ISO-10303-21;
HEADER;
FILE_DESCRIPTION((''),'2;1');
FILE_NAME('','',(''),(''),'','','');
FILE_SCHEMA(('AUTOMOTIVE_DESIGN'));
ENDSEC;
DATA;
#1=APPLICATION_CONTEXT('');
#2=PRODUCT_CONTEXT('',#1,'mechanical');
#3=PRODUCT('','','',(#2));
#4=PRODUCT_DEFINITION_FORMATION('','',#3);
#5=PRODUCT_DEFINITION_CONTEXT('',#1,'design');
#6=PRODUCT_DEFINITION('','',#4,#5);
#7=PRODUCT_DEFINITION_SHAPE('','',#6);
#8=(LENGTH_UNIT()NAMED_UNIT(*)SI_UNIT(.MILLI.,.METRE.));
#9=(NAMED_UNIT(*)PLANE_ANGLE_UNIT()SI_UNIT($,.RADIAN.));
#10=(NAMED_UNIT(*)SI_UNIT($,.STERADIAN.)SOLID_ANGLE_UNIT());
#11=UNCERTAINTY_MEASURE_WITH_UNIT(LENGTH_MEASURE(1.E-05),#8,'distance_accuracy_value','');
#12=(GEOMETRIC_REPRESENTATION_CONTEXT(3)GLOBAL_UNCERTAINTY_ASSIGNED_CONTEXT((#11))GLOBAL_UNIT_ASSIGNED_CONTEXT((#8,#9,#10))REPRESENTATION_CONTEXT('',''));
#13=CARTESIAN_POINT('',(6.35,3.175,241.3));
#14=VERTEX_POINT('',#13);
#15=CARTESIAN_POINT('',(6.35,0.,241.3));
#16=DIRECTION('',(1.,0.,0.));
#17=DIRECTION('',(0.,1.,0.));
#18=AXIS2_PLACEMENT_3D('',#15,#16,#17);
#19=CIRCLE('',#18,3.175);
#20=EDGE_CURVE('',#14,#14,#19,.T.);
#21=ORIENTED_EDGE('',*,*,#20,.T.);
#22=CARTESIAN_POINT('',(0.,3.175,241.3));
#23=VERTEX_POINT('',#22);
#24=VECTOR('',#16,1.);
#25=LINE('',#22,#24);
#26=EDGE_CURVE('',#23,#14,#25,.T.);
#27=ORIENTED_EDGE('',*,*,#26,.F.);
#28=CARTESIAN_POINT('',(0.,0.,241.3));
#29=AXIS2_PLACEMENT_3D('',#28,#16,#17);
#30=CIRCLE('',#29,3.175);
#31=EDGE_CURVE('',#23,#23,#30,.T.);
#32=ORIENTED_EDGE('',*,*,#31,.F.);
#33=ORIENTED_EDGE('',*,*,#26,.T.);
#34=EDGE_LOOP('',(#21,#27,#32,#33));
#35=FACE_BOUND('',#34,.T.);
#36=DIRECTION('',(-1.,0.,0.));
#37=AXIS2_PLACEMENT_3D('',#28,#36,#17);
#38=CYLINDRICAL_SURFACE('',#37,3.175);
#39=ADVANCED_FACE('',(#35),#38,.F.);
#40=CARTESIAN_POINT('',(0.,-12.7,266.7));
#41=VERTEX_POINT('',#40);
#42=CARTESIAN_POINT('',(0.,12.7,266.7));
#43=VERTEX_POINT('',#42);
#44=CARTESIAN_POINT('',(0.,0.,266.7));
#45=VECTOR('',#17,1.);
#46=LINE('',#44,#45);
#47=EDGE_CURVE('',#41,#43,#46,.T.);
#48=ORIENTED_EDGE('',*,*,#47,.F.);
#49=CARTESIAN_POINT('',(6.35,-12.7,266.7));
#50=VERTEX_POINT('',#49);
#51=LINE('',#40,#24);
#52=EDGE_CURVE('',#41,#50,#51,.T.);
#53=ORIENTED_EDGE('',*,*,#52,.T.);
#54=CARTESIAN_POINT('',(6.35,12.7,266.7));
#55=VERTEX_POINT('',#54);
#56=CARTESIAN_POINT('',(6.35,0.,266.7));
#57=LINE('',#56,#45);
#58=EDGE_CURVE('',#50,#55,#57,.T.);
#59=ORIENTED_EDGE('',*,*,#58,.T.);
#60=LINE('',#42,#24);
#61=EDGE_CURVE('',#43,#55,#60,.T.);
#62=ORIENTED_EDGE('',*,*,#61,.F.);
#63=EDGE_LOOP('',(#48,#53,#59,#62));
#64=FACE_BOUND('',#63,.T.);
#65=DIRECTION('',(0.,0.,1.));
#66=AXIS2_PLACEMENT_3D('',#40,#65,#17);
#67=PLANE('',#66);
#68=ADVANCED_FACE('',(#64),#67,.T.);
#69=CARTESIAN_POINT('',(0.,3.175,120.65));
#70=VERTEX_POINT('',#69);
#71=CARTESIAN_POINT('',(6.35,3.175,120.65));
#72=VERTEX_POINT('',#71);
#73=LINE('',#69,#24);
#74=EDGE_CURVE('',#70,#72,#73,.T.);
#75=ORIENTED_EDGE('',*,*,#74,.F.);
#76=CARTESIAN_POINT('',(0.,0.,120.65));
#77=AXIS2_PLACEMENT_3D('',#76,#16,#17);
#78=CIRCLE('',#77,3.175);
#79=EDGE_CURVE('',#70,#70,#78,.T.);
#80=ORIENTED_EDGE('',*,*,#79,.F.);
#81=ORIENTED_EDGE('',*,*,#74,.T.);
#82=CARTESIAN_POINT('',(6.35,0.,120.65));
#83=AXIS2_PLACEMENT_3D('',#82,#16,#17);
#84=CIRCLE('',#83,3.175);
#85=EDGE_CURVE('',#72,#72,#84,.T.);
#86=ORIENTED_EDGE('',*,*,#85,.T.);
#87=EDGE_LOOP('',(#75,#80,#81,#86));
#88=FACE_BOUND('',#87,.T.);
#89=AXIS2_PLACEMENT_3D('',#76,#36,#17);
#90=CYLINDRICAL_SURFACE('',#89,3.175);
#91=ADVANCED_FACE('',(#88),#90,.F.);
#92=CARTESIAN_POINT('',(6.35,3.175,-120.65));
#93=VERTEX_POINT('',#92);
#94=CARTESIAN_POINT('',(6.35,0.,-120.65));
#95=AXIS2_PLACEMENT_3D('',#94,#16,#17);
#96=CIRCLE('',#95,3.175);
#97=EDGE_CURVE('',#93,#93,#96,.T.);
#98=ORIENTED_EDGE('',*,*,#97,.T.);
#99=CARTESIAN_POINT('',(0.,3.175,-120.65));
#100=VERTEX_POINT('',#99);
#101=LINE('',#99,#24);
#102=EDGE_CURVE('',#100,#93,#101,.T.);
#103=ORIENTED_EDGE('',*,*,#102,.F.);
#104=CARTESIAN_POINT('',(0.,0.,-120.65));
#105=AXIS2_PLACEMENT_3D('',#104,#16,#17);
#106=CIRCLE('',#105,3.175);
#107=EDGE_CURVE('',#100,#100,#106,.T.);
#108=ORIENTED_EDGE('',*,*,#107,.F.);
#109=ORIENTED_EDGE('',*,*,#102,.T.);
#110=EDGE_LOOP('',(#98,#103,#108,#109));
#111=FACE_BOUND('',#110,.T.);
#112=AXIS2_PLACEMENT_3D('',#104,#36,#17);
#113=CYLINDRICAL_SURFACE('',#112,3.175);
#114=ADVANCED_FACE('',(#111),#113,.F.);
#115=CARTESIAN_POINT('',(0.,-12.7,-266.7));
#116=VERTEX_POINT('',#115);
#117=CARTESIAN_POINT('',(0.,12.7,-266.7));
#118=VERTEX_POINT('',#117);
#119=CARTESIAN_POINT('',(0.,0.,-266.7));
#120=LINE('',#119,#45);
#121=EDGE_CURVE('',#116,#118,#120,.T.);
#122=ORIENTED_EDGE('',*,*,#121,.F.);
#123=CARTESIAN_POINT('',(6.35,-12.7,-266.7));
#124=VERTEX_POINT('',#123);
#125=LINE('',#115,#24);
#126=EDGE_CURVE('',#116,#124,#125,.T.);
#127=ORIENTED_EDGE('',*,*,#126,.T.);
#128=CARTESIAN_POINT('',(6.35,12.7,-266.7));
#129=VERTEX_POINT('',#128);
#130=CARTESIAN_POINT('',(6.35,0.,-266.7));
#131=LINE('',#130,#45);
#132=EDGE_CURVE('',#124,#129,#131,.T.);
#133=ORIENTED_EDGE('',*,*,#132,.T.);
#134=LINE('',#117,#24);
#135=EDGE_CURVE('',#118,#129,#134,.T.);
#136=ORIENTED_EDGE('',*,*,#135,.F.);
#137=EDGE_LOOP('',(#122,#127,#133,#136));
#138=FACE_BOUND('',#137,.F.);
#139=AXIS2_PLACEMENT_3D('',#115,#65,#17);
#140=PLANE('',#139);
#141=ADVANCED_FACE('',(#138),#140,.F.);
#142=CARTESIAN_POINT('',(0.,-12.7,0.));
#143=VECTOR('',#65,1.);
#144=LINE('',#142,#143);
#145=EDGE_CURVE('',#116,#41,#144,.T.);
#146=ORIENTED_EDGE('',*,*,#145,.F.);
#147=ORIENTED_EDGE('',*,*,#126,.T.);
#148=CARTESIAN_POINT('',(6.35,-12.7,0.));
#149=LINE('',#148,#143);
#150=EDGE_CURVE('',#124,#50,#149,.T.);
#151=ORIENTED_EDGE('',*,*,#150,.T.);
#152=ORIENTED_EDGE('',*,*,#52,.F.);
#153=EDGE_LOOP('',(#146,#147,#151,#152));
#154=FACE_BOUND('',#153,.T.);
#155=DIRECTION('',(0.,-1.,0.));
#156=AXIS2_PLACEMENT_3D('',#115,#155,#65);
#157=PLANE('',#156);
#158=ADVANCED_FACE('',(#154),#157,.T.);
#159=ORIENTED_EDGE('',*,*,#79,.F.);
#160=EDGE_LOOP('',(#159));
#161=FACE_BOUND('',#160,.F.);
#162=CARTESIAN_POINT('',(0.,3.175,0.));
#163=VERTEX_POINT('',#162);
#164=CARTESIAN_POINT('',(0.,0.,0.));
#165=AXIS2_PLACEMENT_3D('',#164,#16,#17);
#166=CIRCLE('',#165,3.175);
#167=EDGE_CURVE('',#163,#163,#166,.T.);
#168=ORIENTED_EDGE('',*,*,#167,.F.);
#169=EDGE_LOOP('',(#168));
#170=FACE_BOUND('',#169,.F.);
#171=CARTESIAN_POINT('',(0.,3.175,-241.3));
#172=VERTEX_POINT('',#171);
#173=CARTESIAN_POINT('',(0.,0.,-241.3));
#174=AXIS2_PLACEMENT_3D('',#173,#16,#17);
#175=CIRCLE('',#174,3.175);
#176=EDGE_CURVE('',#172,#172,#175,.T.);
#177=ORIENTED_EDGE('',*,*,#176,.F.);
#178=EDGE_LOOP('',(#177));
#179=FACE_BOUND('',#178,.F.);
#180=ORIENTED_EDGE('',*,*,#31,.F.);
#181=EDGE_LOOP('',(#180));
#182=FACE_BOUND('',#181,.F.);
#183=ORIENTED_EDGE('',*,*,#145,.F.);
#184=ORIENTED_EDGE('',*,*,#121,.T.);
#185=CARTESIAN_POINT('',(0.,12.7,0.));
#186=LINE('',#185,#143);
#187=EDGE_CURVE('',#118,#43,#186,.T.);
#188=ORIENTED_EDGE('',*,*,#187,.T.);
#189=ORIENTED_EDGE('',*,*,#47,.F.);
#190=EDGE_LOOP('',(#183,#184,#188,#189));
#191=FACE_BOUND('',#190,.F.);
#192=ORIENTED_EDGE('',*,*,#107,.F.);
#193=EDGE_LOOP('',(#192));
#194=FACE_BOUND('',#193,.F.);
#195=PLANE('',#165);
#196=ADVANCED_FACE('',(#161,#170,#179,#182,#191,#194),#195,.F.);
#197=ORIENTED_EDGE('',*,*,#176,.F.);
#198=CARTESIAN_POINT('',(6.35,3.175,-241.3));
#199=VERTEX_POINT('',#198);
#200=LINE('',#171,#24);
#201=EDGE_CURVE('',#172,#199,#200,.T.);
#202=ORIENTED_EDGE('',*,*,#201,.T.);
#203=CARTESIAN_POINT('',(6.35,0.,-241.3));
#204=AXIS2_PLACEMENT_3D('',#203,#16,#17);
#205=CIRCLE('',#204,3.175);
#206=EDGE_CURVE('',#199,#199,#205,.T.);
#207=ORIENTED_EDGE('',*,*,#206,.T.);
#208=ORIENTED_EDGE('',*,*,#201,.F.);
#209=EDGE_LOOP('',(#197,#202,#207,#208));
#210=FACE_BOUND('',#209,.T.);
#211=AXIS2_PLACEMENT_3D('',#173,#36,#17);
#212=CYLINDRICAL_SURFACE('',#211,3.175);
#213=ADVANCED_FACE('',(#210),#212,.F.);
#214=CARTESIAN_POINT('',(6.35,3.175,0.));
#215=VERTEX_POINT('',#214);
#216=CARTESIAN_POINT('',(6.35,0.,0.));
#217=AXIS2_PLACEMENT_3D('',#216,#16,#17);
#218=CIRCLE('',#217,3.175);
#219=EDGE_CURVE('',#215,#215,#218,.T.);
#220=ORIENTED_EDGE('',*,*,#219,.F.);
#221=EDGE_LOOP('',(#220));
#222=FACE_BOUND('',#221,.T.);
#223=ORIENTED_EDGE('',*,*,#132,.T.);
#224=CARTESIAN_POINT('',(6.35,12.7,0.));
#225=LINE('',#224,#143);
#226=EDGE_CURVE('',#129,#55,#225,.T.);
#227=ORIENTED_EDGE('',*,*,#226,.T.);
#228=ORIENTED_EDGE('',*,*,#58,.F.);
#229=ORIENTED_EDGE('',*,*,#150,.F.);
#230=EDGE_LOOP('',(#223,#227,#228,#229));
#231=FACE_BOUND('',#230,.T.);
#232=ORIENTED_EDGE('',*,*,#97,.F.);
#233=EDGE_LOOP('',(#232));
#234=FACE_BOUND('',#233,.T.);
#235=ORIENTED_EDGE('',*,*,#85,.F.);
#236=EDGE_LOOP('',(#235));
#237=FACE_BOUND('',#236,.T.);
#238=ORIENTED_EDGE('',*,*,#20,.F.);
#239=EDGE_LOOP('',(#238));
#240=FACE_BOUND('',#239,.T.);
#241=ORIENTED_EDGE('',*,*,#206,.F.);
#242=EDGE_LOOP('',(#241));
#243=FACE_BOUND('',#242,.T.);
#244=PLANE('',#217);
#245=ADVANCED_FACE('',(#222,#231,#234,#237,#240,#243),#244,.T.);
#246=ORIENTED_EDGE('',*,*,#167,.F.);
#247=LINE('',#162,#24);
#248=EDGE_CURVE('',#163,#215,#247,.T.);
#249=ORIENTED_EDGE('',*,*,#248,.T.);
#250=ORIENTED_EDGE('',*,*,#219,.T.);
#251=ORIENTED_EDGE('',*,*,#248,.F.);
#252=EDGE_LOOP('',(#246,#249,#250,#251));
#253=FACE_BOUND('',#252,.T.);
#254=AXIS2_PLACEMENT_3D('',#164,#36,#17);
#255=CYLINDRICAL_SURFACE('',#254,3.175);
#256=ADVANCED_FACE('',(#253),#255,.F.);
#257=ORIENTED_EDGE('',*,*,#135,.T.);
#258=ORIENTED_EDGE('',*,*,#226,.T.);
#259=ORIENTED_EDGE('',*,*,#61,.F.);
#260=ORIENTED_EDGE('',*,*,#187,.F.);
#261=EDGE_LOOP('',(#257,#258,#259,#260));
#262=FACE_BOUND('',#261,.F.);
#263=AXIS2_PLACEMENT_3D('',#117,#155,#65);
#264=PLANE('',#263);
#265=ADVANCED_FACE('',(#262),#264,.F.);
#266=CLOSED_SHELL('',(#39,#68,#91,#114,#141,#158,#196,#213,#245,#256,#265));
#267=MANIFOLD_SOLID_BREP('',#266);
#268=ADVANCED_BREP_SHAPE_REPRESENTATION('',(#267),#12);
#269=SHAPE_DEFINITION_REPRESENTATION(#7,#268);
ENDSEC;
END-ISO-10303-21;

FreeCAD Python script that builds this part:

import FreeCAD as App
import Part
import Sketcher
from FreeCAD import Vector
Q = App.Units.Quantity


def add_polygon(sketch, points):
    """Adds a closed chain of lines whose ends are joined by coincident constraints."""
    first, n = sketch.GeometryCount, len(points)
    for a, b in zip(points, points[1:] + points[:1]):
        sketch.addGeometry(Part.LineSegment(App.Vector(*a, 0), App.Vector(*b, 0)), False)
    for i in range(n):
        sketch.addConstraint(Sketcher.Constraint("Coincident", first + i, 2, first + (i + 1) % n, 1))

doc = App.newDocument("Part")
params = doc.addObject("Spreadsheet::Sheet", "Params")
for row, (alias, value) in enumerate([
    ("sketch1_diameter", "0.25 in"),
    ("sketch1_width", "1 in"),
    ("sketch1_height", "21 in"),
    ("pad1_length", "0.25 in"),
], start=1):
    params.set(f"A{row}", alias)
    params.set(f"B{row}", "=" + value)
    params.setAlias(f"B{row}", alias)

body = doc.addObject("PartDesign::Body", "Body")

sketch1 = doc.addObject("Sketcher::SketchObject", "Sketch")
body.addObject(sketch1)
sketch1.AttachmentSupport = (doc.YZ_Plane, [""])
sketch1.MapMode = "FlatFace"
add_polygon(sketch1, [(-12.7, 266.7), (-12.7, -266.7), (12.7, -266.7), (12.7, 266.7)])
sketch1.addGeometry(Part.Circle(Vector(0, -241.3, 0), Vector(0, 0, 1), 3.175), False)
sketch1.addGeometry(Part.Circle(Vector(0, -120.65, 0), Vector(0, 0, 1), 3.175), False)
sketch1.addGeometry(Part.Circle(Vector(0, 0, 0), Vector(0, 0, 1), 3.175), False)
sketch1.addGeometry(Part.Circle(Vector(0, 120.65, 0), Vector(0, 0, 1), 3.175), False)
sketch1.addGeometry(Part.Circle(Vector(0, 241.3, 0), Vector(0, 0, 1), 3.175), False)
sketch1.addConstraint(Sketcher.Constraint("Vertical", 0))
sketch1.addConstraint(Sketcher.Constraint("Horizontal", 1))
sketch1.addConstraint(Sketcher.Constraint("Vertical", 2))
sketch1.addConstraint(Sketcher.Constraint("Horizontal", 3))
sketch1.addConstraint(Sketcher.Constraint("Coincident", 6, 3, -1, 1))
sketch1.addConstraint(Sketcher.Constraint("Equal", 4, 5))
sketch1.addConstraint(Sketcher.Constraint("Equal", 5, 6))
sketch1.addConstraint(Sketcher.Constraint("Equal", 6, 7))
sketch1.addConstraint(Sketcher.Constraint("Equal", 7, 8))
sketch1.addConstraint(Sketcher.Constraint("Symmetric", 5, 3, 7, 3, -1, 1))
sketch1.addConstraint(Sketcher.Constraint("Symmetric", 4, 3, 8, 3, -1, 1))
sketch1.addConstraint(Sketcher.Constraint("Symmetric", 0, 2, 2, 2, -1, 1))
sketch1.addConstraint(Sketcher.Constraint("PointOnObject", 4, 3, -2))
sketch1.addConstraint(Sketcher.Constraint("PointOnObject", 5, 3, -2))
sketch1.addConstraint(Sketcher.Constraint("Diameter", 4, Q("0.25 in")))
sketch1.addConstraint(Sketcher.Constraint("DistanceX", 1, 1, 1, 2, Q("1 in")))
sketch1.addConstraint(Sketcher.Constraint("DistanceY", 0, 2, 0, 1, Q("21 in")))
sketch1.addConstraint(Sketcher.Constraint("DistanceY", 4, 3, 8, 3, Q("19 in")))
sketch1.addConstraint(Sketcher.Constraint("DistanceY", 5, 3, 7, 3, Q("9.5 in")))
sketch1.setExpression("Constraints[18]", "Params.sketch1_diameter")
sketch1.setExpression("Constraints[19]", "Params.sketch1_width")
sketch1.setExpression("Constraints[20]", "Params.sketch1_height")
pad1 = doc.addObject("PartDesign::Pad", "Pad")
body.addObject(pad1)
pad1.Profile = sketch1
pad1.setExpression("Length", "Params.pad1_length")

doc.recompute()
